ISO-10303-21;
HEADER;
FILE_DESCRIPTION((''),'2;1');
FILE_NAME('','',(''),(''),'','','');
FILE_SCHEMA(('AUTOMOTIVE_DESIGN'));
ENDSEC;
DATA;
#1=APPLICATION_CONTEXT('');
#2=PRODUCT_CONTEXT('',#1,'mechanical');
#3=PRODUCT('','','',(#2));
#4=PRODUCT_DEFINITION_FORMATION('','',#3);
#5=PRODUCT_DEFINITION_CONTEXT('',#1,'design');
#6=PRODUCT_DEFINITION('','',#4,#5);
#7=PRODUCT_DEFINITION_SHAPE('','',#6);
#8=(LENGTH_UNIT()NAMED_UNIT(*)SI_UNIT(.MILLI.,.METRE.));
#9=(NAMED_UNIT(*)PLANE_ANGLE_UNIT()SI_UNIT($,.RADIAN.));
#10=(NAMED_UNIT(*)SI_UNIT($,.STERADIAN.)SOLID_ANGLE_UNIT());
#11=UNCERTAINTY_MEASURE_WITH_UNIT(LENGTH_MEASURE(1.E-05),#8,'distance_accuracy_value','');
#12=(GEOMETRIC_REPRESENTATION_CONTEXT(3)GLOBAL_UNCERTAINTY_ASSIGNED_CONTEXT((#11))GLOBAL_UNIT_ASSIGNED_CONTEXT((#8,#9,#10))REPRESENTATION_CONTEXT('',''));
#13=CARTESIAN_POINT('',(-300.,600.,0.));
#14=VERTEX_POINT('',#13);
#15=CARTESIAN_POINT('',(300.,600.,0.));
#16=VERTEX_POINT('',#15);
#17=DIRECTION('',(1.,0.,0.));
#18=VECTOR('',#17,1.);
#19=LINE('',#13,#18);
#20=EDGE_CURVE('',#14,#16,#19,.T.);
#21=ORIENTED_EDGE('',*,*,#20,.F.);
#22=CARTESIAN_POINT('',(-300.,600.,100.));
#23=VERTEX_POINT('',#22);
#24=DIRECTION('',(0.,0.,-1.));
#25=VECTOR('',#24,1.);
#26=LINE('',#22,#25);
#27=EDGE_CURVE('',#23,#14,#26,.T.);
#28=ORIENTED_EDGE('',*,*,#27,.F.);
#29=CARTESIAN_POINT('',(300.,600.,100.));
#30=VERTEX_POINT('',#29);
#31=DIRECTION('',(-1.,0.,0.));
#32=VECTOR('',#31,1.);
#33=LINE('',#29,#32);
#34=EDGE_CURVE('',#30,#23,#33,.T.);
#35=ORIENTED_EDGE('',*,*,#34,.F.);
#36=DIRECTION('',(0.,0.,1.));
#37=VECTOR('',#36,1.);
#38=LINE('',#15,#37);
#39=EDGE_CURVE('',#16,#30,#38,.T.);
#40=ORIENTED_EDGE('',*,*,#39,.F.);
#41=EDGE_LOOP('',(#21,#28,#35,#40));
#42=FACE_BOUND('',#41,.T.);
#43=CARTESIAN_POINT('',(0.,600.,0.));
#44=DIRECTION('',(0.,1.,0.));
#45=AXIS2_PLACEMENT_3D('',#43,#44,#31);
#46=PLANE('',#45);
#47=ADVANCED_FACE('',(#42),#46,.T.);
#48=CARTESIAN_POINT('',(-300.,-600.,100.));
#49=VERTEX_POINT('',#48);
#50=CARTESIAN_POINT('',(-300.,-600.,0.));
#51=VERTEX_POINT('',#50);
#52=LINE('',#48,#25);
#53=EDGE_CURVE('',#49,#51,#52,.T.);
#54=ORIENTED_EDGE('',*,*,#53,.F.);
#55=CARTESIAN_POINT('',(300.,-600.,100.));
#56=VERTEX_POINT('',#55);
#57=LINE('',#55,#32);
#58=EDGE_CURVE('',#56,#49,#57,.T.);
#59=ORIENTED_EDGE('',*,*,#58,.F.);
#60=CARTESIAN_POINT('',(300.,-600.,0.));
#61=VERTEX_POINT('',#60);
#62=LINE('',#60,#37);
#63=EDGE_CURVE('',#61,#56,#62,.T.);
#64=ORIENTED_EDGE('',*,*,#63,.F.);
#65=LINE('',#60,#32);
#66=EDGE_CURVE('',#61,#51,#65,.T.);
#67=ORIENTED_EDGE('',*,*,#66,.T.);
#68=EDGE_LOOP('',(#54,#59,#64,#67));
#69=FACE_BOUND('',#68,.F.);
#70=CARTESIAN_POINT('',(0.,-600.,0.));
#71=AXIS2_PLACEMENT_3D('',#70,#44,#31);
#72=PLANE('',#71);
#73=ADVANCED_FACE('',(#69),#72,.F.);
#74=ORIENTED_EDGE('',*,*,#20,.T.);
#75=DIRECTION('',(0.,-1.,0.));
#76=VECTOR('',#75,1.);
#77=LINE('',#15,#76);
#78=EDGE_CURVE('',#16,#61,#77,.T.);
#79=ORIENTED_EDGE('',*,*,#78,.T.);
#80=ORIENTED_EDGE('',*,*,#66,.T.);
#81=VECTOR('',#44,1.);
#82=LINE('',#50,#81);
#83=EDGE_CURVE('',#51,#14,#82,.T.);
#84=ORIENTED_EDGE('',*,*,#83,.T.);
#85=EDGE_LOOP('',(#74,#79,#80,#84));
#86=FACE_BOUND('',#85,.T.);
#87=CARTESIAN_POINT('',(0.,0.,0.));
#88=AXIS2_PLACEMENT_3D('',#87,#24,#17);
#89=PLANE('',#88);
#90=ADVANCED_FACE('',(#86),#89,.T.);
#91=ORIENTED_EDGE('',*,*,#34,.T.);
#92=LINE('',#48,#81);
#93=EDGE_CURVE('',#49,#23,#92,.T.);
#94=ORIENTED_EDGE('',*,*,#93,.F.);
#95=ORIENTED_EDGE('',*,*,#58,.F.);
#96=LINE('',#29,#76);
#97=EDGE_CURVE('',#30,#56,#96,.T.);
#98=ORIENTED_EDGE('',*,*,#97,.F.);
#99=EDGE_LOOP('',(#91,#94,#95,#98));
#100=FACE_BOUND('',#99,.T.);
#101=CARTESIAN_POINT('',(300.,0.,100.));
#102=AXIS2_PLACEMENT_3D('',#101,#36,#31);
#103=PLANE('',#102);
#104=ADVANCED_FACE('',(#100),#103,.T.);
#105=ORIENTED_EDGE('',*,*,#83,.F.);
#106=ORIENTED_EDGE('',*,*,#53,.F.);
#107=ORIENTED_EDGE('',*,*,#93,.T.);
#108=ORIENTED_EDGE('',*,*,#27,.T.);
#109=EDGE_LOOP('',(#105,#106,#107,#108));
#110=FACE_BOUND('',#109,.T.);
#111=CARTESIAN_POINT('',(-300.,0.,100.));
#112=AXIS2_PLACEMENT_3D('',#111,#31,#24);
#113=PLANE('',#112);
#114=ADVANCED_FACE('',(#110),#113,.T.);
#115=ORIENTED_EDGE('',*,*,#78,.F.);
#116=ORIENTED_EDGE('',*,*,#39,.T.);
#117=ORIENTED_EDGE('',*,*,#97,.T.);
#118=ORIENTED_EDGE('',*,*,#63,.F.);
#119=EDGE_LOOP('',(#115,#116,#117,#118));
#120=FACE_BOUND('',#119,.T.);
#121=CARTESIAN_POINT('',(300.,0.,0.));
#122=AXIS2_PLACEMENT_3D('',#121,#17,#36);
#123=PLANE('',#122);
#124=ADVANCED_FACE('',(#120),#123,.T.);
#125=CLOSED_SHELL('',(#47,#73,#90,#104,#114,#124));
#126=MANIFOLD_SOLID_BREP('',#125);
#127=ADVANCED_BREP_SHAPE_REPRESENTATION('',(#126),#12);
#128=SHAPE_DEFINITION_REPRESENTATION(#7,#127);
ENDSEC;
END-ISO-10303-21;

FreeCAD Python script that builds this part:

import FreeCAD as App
import Part
import Sketcher
from FreeCAD import Vector
Q = App.Units.Quantity

doc = App.newDocument("Part")
params = doc.addObject("Spreadsheet::Sheet", "Params")
for row, (alias, value) in enumerate([
    ("sketch1_width", "600 mm"),
    ("sketch1_height", "100 mm"),
    ("pad1_length", "1200 mm"),
], start=1):
    params.set(f"A{row}", alias)
    params.set(f"B{row}", "=" + value)
    params.setAlias(f"B{row}", alias)

body = doc.addObject("PartDesign::Body", "Body")

# Sketch on XZ plane
sketch1 = body.newObject("Sketcher::SketchObject", "Sketch")
sketch1.AttachmentSupport = (doc.getObject("XZ_Plane"), [""])
sketch1.MapMode = "FlatFace"
sketch1.addGeometry([
    Part.LineSegment(Vector(300, 0, 0), Vector(-300, 0, 0)),
    Part.LineSegment(Vector(-300, 0, 0), Vector(-300, 100, 0)),
    Part.LineSegment(Vector(-300, 100, 0), Vector(300, 100, 0)),
    Part.LineSegment(Vector(300, 100, 0), Vector(300, 0, 0)),
], False)
sketch1.addConstraint([
    Sketcher.Constraint("Coincident", 0, 2, 1, 1),
    Sketcher.Constraint("Coincident", 1, 2, 2, 1),
    Sketcher.Constraint("Coincident", 2, 2, 3, 1),
    Sketcher.Constraint("Coincident", 3, 2, 0, 1),
    Sketcher.Constraint("Horizontal", 0),
    Sketcher.Constraint("Vertical", 1),
    Sketcher.Constraint("Horizontal", 2),
    Sketcher.Constraint("Vertical", 3),
    Sketcher.Constraint("Symmetric", 0, 2, 3, 2, -1, 1),
    Sketcher.Constraint("DistanceX", 0, 2, 0, 1, Q("600 mm")),
    Sketcher.Constraint("DistanceY", 1, 1, 1, 2, Q("100 mm")),
])
sketch1.setExpression("Constraints[9]", "Params.sketch1_width")
sketch1.setExpression("Constraints[10]", "Params.sketch1_height")
pad1 = body.newObject("PartDesign::Pad", "Pad")
pad1.Profile = sketch1
pad1.setExpression("Length", "Params.pad1_length")
pad1.Midplane = True

doc.recompute()
